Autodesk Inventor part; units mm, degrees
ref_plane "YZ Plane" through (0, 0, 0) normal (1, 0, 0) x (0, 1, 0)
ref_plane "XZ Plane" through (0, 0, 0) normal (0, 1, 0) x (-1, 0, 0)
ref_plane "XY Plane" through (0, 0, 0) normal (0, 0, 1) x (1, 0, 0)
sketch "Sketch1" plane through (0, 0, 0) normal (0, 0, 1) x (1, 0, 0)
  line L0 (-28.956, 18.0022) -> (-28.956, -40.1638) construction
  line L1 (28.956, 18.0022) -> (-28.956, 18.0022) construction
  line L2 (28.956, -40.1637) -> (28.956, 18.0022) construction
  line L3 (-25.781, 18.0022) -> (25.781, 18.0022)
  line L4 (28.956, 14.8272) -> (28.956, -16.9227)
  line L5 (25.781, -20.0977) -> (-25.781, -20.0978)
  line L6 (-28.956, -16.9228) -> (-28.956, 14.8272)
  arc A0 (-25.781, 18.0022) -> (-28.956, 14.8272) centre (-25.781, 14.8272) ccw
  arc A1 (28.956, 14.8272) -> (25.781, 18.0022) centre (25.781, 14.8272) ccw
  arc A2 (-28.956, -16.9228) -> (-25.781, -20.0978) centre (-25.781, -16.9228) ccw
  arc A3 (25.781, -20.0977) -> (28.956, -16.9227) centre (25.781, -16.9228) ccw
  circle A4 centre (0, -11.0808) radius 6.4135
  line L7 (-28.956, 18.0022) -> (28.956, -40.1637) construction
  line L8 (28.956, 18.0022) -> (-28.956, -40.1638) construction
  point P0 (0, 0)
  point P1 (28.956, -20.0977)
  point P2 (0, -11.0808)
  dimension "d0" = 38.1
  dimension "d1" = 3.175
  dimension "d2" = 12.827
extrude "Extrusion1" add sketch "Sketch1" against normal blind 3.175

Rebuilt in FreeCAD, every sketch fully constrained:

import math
import FreeCAD as App
import Part
import Sketcher
Q = App.Units.Quantity

doc = App.newDocument("Part")
body = doc.addObject("PartDesign::Body", "Body")

sketch1 = body.newObject("Sketcher::SketchObject", "Sketch")
sketch1.AttachmentSupport = (doc.getObject("XY_Plane"), [""])
sketch1.MapMode = "FlatFace"
sketch1.addGeometry([
    Part.LineSegment(App.Vector(25.8, 18, 0), App.Vector(-25.8, 18, 0)),
    Part.ArcOfCircle(Part.Circle(App.Vector(-25.8, 14.8, 0), App.Vector(0, 0, 1), 3.2), math.radians(90), math.radians(180)),
    Part.LineSegment(App.Vector(-29, 14.8, 0), App.Vector(-29, -16.9, 0)),
    Part.ArcOfCircle(Part.Circle(App.Vector(-25.8, -16.9, 0), App.Vector(0, 0, 1), 3.2), math.radians(180), math.radians(270)),
    Part.LineSegment(App.Vector(-25.8, -20.1, 0), App.Vector(25.8, -20.1, 0)),
    Part.ArcOfCircle(Part.Circle(App.Vector(25.8, -16.9, 0), App.Vector(0, 0, 1), 3.2), math.radians(-90), math.radians(0)),
    Part.LineSegment(App.Vector(29, -16.9, 0), App.Vector(29, 14.8, 0)),
    Part.ArcOfCircle(Part.Circle(App.Vector(25.8, 14.8, 0), App.Vector(0, 0, 1), 3.2), math.radians(0), math.radians(90)),
    Part.Circle(App.Vector(0, -11.1, 0), App.Vector(0, 0, 1), 6.4),
], False)
sketch1.addConstraint([
    Sketcher.Constraint("Tangent", 0, 2, 1, 1),
    Sketcher.Constraint("Tangent", 1, 2, 2, 1),
    Sketcher.Constraint("Tangent", 2, 2, 3, 1),
    Sketcher.Constraint("Tangent", 3, 2, 4, 1),
    Sketcher.Constraint("Tangent", 4, 2, 5, 1),
    Sketcher.Constraint("Tangent", 5, 2, 6, 1),
    Sketcher.Constraint("Tangent", 6, 2, 7, 1),
    Sketcher.Constraint("Tangent", 7, 2, 0, 1),
    Sketcher.Constraint("Horizontal", 0),
    Sketcher.Constraint("Vertical", 2),
    Sketcher.Constraint("Horizontal", 4),
    Sketcher.Constraint("Vertical", 6),
    Sketcher.Constraint("Equal", 1, 3),
    Sketcher.Constraint("Equal", 3, 5),
    Sketcher.Constraint("Equal", 5, 7),
    Sketcher.Constraint("PointOnObject", 8, 3, -2),
    Sketcher.Constraint("Diameter", 8, Q("0.505 in")),
    Sketcher.Constraint("Radius", 1, Q("0.125 in")),
    Sketcher.Constraint("DistanceY", 4, 2, 7, 2, Q("1.5 in")),
    Sketcher.Constraint("DistanceX", 0, 2, 0, 1, Q("2.03 in")),
    Sketcher.Constraint("DistanceX", 1, 2, -1, 1, Q("1.14 in")),
    Sketcher.Constraint("DistanceY", 3, 3, 8, 3, Q("0.23 in")),
    Sketcher.Constraint("DistanceY", -1, 1, 1, 3, Q("14.8272 mm")),
])
pad1 = body.newObject("PartDesign::Pad", "Pad")
pad1.Profile = sketch1
pad1.Length = Q("0.125 in")
pad1.Reversed = True

doc.recompute()
